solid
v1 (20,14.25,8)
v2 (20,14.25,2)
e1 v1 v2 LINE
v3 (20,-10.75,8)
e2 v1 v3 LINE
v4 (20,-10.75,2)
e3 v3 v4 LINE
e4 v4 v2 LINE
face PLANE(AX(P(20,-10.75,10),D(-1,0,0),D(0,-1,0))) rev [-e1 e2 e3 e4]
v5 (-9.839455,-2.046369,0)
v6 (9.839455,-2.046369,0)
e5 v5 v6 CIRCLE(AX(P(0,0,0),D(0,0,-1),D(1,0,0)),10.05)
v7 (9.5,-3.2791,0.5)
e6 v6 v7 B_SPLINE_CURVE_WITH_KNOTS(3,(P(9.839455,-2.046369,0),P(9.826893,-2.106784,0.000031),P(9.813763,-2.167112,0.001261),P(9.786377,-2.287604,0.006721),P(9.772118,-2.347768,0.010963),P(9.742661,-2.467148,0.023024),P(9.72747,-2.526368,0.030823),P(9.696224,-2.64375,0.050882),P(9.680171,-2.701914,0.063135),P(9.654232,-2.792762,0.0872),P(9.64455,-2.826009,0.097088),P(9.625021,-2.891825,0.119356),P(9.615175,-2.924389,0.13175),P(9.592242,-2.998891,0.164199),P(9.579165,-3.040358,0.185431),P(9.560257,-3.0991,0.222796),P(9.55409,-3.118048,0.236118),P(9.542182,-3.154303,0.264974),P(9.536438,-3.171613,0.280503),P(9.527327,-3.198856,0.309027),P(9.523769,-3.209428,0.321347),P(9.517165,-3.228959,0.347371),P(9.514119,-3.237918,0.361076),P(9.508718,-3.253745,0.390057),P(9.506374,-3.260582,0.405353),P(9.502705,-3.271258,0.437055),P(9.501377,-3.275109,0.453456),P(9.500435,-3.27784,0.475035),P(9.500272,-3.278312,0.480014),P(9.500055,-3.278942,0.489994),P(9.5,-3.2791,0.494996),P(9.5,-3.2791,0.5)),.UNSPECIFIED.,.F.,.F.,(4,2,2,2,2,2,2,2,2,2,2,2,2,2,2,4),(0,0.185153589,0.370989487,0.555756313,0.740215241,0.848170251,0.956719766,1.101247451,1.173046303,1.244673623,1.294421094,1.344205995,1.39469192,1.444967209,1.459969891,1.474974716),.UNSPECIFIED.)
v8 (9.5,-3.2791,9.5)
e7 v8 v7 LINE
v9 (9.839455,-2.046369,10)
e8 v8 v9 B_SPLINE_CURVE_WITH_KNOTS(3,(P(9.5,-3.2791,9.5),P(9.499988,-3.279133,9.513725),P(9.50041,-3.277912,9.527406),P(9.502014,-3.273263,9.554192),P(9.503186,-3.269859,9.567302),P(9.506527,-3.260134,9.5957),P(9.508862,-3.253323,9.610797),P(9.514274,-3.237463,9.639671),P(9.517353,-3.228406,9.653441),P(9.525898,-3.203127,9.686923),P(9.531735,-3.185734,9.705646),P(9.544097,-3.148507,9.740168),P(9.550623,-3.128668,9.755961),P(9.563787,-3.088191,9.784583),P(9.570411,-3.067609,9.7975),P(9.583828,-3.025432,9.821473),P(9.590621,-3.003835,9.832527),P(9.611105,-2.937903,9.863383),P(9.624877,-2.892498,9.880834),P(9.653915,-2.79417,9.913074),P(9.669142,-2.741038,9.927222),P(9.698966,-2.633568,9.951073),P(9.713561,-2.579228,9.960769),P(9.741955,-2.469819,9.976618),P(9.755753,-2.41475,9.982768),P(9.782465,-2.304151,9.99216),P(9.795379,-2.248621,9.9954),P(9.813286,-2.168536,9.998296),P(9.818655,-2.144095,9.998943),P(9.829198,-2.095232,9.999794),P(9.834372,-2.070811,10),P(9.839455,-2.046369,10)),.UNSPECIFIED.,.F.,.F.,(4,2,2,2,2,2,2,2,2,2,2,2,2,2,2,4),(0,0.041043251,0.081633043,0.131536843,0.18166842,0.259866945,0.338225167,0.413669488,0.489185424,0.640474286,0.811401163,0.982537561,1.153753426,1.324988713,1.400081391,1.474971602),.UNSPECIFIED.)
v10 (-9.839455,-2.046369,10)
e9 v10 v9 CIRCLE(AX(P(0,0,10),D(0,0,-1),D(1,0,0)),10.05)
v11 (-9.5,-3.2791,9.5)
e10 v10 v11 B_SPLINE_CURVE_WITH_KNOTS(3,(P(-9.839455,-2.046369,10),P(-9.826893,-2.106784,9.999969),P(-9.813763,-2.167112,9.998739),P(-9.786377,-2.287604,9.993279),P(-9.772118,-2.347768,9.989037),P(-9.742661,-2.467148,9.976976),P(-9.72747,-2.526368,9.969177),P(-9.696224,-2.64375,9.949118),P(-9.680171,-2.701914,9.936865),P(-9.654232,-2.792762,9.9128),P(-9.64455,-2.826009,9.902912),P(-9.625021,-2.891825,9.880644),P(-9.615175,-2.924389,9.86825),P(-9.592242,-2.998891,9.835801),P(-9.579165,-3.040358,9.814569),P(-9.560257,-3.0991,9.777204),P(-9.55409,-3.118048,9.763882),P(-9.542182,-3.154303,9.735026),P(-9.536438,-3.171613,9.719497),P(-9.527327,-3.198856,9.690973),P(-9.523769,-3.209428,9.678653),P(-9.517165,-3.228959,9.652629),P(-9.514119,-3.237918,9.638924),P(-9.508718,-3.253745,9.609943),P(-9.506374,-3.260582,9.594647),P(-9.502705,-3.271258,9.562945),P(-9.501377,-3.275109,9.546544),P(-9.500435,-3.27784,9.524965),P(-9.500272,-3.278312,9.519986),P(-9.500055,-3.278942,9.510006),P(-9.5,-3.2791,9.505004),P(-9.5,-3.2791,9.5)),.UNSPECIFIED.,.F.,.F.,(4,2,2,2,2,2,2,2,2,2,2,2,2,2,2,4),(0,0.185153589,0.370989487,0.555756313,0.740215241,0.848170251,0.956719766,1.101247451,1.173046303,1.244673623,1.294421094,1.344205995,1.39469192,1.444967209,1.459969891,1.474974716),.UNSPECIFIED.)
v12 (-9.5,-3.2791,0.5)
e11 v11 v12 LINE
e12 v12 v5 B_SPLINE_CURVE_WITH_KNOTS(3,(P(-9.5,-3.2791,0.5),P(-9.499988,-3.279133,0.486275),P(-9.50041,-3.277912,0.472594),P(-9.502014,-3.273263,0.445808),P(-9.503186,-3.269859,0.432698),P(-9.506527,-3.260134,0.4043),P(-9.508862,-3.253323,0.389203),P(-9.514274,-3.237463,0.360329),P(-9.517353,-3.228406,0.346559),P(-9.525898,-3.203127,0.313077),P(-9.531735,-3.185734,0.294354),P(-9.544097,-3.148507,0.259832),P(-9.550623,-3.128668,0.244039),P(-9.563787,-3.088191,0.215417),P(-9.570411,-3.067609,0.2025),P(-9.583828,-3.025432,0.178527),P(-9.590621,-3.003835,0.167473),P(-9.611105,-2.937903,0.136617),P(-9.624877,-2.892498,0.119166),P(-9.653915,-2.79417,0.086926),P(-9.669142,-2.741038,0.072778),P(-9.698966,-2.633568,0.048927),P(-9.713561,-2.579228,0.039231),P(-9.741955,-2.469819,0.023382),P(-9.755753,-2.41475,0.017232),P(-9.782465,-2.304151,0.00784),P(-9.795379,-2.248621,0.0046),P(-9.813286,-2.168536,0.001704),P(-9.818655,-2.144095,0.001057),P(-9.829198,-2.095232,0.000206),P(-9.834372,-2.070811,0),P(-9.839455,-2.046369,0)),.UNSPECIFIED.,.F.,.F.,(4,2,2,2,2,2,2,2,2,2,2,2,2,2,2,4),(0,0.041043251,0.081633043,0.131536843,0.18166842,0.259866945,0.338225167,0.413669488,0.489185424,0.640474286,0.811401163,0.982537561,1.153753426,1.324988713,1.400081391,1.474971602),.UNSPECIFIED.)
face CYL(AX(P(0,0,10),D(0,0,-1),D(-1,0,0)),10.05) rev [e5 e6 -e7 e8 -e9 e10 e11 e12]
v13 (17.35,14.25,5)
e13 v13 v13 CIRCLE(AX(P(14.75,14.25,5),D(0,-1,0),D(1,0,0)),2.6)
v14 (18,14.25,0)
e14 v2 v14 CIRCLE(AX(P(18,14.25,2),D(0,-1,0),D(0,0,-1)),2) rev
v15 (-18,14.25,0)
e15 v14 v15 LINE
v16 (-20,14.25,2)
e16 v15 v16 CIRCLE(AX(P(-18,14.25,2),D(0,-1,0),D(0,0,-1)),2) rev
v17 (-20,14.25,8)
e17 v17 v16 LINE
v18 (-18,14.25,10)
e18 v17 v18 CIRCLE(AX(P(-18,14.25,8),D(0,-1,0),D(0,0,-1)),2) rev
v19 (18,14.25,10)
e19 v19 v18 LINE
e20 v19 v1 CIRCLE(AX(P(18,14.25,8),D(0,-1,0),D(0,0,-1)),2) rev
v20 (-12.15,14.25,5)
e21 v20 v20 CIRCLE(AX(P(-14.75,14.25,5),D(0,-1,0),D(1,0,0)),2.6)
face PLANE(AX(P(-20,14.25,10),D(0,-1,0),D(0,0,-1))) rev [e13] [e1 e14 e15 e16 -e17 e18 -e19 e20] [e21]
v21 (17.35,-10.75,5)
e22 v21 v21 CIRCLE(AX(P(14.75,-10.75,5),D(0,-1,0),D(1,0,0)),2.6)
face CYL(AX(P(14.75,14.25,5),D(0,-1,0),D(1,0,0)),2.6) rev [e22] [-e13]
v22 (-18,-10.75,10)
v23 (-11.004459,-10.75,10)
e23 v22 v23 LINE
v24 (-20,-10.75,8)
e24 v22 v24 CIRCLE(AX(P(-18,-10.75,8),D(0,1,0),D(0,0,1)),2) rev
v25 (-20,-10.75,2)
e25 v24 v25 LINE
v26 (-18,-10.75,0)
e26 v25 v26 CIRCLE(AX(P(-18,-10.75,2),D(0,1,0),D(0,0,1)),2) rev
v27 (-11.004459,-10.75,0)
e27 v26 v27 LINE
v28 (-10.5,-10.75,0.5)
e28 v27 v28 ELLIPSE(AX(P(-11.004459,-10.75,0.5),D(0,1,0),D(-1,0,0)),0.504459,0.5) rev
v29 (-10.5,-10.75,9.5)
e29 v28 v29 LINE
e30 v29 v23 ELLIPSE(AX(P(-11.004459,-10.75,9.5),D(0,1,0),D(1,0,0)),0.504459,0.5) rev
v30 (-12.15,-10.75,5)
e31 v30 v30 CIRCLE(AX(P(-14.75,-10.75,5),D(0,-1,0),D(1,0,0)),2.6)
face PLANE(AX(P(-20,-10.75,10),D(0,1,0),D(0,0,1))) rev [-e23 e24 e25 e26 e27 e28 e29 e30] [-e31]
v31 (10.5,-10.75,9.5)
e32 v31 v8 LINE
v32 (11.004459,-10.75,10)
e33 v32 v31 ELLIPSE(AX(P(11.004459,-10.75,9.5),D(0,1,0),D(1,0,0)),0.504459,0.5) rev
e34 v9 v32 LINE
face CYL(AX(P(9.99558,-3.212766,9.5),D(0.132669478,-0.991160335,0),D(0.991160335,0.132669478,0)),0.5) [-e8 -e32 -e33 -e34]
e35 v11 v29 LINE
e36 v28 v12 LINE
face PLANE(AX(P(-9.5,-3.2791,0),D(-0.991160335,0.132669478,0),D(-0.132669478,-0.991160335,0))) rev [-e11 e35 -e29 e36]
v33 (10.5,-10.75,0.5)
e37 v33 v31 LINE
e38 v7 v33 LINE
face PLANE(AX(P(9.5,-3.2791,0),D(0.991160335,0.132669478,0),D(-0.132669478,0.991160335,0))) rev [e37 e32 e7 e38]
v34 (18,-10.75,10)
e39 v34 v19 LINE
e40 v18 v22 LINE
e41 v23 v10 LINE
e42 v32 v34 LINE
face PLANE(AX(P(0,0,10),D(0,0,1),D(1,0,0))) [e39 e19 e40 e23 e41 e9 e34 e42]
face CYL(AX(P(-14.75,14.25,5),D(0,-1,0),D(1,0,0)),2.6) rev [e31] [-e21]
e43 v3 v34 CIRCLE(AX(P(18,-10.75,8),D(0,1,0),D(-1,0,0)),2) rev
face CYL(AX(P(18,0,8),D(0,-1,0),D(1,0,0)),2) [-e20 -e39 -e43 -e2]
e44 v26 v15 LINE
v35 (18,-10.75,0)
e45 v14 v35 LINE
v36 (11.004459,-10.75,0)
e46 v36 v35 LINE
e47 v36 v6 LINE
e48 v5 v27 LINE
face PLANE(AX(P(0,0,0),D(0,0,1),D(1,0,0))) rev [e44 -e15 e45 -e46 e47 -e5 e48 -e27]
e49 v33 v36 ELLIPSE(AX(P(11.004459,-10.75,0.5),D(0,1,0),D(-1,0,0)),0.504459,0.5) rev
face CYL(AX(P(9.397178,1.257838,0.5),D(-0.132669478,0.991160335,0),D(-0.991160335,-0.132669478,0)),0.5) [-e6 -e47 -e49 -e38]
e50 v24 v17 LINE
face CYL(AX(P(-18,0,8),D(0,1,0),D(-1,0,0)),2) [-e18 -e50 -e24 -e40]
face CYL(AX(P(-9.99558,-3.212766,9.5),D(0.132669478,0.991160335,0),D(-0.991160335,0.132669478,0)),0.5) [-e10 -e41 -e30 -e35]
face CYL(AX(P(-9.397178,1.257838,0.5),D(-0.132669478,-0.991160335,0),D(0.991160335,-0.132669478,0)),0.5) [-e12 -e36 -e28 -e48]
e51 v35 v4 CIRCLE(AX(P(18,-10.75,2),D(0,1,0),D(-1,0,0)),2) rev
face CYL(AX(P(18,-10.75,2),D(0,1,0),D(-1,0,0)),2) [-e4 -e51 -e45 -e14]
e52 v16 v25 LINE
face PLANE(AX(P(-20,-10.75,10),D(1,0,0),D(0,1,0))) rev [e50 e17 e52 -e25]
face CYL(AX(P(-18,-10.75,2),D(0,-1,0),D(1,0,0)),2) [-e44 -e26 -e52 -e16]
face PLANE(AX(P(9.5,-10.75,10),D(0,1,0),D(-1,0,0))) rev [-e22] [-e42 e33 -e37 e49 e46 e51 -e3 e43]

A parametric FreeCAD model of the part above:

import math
import FreeCAD as App
import Part
import Sketcher

V = App.Vector
Q = App.Units.Quantity


def edges_at(feature, points):
    """Names of the edges that pass closest to the given points."""
    edges = feature.Shape.Edges
    near = lambda p: min(range(len(edges)), key=lambda i: edges[i].distToShape(Part.Vertex(*p))[0])
    return sorted({f"Edge{near(p) + 1}" for p in points})

doc = App.newDocument("Part")
body = doc.addObject("PartDesign::Body", "Body")

# Sketch on XY plane
sketch1 = body.newObject("Sketcher::SketchObject", "Sketch")
sketch1.AttachmentSupport = (doc.getObject("XY_Plane"), [""])
sketch1.MapMode = "FlatFace"
sketch1.addGeometry([
    Part.LineSegment(V(9.5, -3.2791, 0), V(9.5, -10.75, 0)),  # 0
    Part.LineSegment(V(9.5, -10.75, 0), V(20, -10.75, 0)),  # 1
    Part.LineSegment(V(20, -10.75, 0), V(20, 14.25, 0)),  # 2
    Part.LineSegment(V(20, 14.25, 0), V(-20, 14.25, 0)),  # 3
    Part.LineSegment(V(-20, 14.25, 0), V(-20, -10.75, 0)),  # 4
    Part.LineSegment(V(-20, -10.75, 0), V(-9.5, -10.75, 0)),  # 5
    Part.LineSegment(V(-9.5, -10.75, 0), V(-9.5, -3.2791, 0)),  # 6
    Part.ArcOfCircle(Part.Circle(V(0, 0, 0), V(0, 0, 1), 10.05), math.radians(-19.04306), math.radians(199.04306)),  # 7
], False)
sketch1.addConstraint([
    Sketcher.Constraint("Coincident", 0, 2, 1, 1),
    Sketcher.Constraint("Coincident", 1, 2, 2, 1),
    Sketcher.Constraint("Coincident", 2, 2, 3, 1),
    Sketcher.Constraint("Coincident", 3, 2, 4, 1),
    Sketcher.Constraint("Coincident", 4, 2, 5, 1),
    Sketcher.Constraint("Coincident", 5, 2, 6, 1),
    Sketcher.Constraint("Coincident", 6, 2, 7, 2),
    Sketcher.Constraint("Coincident", 7, 1, 0, 1),
    Sketcher.Constraint("Vertical", 0),
    Sketcher.Constraint("Horizontal", 1),
    Sketcher.Constraint("Vertical", 2),
    Sketcher.Constraint("Horizontal", 3),
    Sketcher.Constraint("Vertical", 4),
    Sketcher.Constraint("Horizontal", 5),
    Sketcher.Constraint("Vertical", 6),
    Sketcher.Constraint("Coincident", 7, 3, -1, 1),
    Sketcher.Constraint("Symmetric", 1, 2, 4, 2, -2),
    Sketcher.Constraint("Horizontal", 6, 2, 7, 1),
    Sketcher.Constraint("DistanceX", 3, 2, 3, 1, Q("40 mm")),
    Sketcher.Constraint("DistanceY", 2, 1, 2, 2, Q("25 mm")),
    Sketcher.Constraint("Radius", 7, Q("10.05 mm")),
    Sketcher.Constraint("DistanceX", 1, 1, 1, 2, Q("10.5 mm")),
    Sketcher.Constraint("DistanceY", 0, 2, -1, 1, Q("10.75 mm")),
])
pad1 = body.newObject("PartDesign::Pad", "Pad")
pad1.Profile = sketch1
pad1.Length = 10

# Sketch on XZ plane
sketch2 = body.newObject("Sketcher::SketchObject", "Sketch001")
sketch2.AttachmentSupport = (doc.getObject("XZ_Plane"), [""])
sketch2.MapMode = "FlatFace"
sketch2.AttachmentOffset = App.Placement(V(0, 0, 10.75), App.Rotation())
sketch2.addGeometry([
    Part.Circle(V(-14.75, 5, 0), V(0, 0, 1), 2.6),
    Part.Circle(V(14.75, 5, 0), V(0, 0, 1), 2.6),
], False)
sketch2.addConstraint([
    Sketcher.Constraint("Equal", 0, 1),
    Sketcher.Constraint("Symmetric", 0, 3, 1, 3, -2),
    Sketcher.Constraint("Diameter", 0, Q("5.2 mm")),
    Sketcher.Constraint("DistanceY", -1, 1, 0, 3, Q("5 mm")),
    Sketcher.Constraint("DistanceX", 0, 3, 1, 3, Q("29.5 mm")),
])
pocket1 = body.newObject("PartDesign::Pocket", "Pocket")
pocket1.Profile = sketch2
pocket1.Type = "ThroughAll"
doc.recompute()

fillet = body.newObject("PartDesign::Fillet", "Fillet")
fillet.Base = (pocket1, edges_at(pocket1, [
    (20, 1.75, 10),
    (-20, 1.75, 10),
    (-20, 1.75, 0),
    (20, 1.75, 0),
]))
fillet.Radius = 2

# Sketch on XY plane
sketch3 = body.newObject("Sketcher::SketchObject", "Sketch002")
sketch3.AttachmentSupport = (doc.getObject("XY_Plane"), [""])
sketch3.MapMode = "FlatFace"
sketch3.AttachmentOffset = App.Placement(V(0, 0, 10), App.Rotation())
sketch3.addGeometry([
    Part.LineSegment(V(-9.5, -10.75, 0), V(-9.5, -3.2791, 0)),  # 0
    Part.LineSegment(V(-9.5, -3.2791, 0), V(-10.5, -10.75, 0)),  # 1
    Part.LineSegment(V(-10.5, -10.75, 0), V(-9.5, -10.75, 0)),  # 2
    Part.LineSegment(V(9.5, -3.2791, 0), V(9.5, -10.75, 0)),  # 3
    Part.LineSegment(V(9.5, -10.75, 0), V(10.5, -10.75, 0)),  # 4
    Part.LineSegment(V(10.5, -10.75, 0), V(9.5, -3.2791, 0)),  # 5
], False)
sketch3.addConstraint([
    Sketcher.Constraint("Coincident", 0, 2, 1, 1),
    Sketcher.Constraint("Coincident", 1, 2, 2, 1),
    Sketcher.Constraint("Coincident", 2, 2, 0, 1),
    Sketcher.Constraint("Coincident", 3, 2, 4, 1),
    Sketcher.Constraint("Coincident", 4, 2, 5, 1),
    Sketcher.Constraint("Coincident", 5, 2, 3, 1),
    Sketcher.Constraint("Vertical", 0),
    Sketcher.Constraint("Horizontal", 2),
    Sketcher.Constraint("Vertical", 3),
    Sketcher.Constraint("Horizontal", 4),
    Sketcher.Constraint("Symmetric", 2, 2, 3, 2, -2),
    Sketcher.Constraint("Horizontal", 0, 2, 5, 2),
    Sketcher.Constraint("Equal", 2, 4),
    Sketcher.Constraint("DistanceX", 2, 1, 2, 2, Q("1 mm")),
    Sketcher.Constraint("DistanceX", 2, 2, 3, 2, Q("19 mm")),
    Sketcher.Constraint("DistanceY", 1, 2, -1, 1, Q("10.75 mm")),
    Sketcher.Constraint("DistanceY", 0, 1, 0, 2, Q("7.4709 mm")),
])
pocket2 = body.newObject("PartDesign::Pocket", "Pocket001")
pocket2.Profile = sketch3
pocket2.Type = "ThroughAll"
doc.recompute()

fillet2 = body.newObject("PartDesign::Fillet", "Fillet001")
fillet2.Base = (pocket2, edges_at(pocket2, [
    (-10, -7.015, 0),
    (-10, -7.015, 10),
    (10, -7.015, 0),
    (10, -7.015, 10),
]))
fillet2.Radius = 0.5

doc.recompute()
